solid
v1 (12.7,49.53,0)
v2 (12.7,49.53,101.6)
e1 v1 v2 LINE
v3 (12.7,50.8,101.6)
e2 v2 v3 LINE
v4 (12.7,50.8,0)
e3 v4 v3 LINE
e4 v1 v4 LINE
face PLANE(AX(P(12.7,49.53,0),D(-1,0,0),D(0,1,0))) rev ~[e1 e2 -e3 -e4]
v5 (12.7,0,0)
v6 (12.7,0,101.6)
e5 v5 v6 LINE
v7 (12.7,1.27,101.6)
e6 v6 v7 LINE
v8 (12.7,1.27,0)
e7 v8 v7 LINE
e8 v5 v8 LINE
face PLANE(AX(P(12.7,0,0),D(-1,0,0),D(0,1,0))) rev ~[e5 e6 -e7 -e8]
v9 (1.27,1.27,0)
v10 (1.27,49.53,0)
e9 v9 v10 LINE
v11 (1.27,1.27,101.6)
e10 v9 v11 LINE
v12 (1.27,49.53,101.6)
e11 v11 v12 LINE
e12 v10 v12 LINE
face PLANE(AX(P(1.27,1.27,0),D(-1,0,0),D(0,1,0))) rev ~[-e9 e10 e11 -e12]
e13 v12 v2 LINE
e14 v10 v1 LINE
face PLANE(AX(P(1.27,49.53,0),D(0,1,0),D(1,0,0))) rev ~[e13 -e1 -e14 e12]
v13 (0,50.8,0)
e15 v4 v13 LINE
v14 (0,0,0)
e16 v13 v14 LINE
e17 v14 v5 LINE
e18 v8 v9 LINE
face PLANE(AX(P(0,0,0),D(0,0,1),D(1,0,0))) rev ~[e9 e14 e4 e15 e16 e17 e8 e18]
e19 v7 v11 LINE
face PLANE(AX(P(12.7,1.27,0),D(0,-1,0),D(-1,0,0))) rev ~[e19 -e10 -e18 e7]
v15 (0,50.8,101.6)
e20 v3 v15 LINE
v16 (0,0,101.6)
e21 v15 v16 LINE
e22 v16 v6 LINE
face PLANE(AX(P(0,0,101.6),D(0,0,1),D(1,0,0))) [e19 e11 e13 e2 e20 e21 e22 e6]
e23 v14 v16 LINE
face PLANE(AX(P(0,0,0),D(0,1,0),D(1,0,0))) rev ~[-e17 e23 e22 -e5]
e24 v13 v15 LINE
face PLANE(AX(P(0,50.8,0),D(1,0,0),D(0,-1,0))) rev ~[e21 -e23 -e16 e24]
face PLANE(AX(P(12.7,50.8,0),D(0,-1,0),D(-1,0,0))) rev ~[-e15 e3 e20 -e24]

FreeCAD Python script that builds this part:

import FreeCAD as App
import Part
import Sketcher
from FreeCAD import Vector
Q = App.Units.Quantity


def add_polygon(sketch, points):
    """Adds a closed chain of lines whose ends are joined by coincident constraints."""
    first, n = sketch.GeometryCount, len(points)
    for a, b in zip(points, points[1:] + points[:1]):
        sketch.addGeometry(Part.LineSegment(App.Vector(*a, 0), App.Vector(*b, 0)), False)
    for i in range(n):
        sketch.addConstraint(Sketcher.Constraint("Coincident", first + i, 2, first + (i + 1) % n, 1))

doc = App.newDocument("Part")
body = doc.addObject("PartDesign::Body", "Body")

sketch1 = doc.addObject("Sketcher::SketchObject", "Sketch")
body.addObject(sketch1)
sketch1.AttachmentSupport = (doc.XY_Plane, [""])
sketch1.MapMode = "FlatFace"
add_polygon(sketch1, [(0, 50.8), (0, 0), (12.7, 0), (12.7, 1.3), (1.3, 1.3), (1.3, 49.5), (12.7, 49.5), (12.7, 50.8)])
sketch1.addConstraint([
    Sketcher.Constraint("Vertical", 0),
    Sketcher.Constraint("Horizontal", 1),
    Sketcher.Constraint("Vertical", 2),
    Sketcher.Constraint("Horizontal", 3),
    Sketcher.Constraint("Vertical", 4),
    Sketcher.Constraint("Horizontal", 5),
    Sketcher.Constraint("Vertical", 6),
    Sketcher.Constraint("Horizontal", 7),
    Sketcher.Constraint("Coincident", 0, 2, -1, 1),
    Sketcher.Constraint("Vertical", 2, 2, 5, 2),
    Sketcher.Constraint("Equal", 2, 6),
    Sketcher.Constraint("DistanceY", 0, 2, 0, 1, Q("2 in")),
    Sketcher.Constraint("DistanceX", 1, 1, 1, 2, Q("0.5 in")),
    Sketcher.Constraint("DistanceY", 4, 1, 4, 2, Q("1.9 in")),
    Sketcher.Constraint("DistanceX", 3, 2, 3, 1, Q("0.45 in")),
])
pad1 = doc.addObject("PartDesign::Pad", "Pad")
body.addObject(pad1)
pad1.Profile = sketch1
pad1.Length = Q("4 in")

doc.recompute()
